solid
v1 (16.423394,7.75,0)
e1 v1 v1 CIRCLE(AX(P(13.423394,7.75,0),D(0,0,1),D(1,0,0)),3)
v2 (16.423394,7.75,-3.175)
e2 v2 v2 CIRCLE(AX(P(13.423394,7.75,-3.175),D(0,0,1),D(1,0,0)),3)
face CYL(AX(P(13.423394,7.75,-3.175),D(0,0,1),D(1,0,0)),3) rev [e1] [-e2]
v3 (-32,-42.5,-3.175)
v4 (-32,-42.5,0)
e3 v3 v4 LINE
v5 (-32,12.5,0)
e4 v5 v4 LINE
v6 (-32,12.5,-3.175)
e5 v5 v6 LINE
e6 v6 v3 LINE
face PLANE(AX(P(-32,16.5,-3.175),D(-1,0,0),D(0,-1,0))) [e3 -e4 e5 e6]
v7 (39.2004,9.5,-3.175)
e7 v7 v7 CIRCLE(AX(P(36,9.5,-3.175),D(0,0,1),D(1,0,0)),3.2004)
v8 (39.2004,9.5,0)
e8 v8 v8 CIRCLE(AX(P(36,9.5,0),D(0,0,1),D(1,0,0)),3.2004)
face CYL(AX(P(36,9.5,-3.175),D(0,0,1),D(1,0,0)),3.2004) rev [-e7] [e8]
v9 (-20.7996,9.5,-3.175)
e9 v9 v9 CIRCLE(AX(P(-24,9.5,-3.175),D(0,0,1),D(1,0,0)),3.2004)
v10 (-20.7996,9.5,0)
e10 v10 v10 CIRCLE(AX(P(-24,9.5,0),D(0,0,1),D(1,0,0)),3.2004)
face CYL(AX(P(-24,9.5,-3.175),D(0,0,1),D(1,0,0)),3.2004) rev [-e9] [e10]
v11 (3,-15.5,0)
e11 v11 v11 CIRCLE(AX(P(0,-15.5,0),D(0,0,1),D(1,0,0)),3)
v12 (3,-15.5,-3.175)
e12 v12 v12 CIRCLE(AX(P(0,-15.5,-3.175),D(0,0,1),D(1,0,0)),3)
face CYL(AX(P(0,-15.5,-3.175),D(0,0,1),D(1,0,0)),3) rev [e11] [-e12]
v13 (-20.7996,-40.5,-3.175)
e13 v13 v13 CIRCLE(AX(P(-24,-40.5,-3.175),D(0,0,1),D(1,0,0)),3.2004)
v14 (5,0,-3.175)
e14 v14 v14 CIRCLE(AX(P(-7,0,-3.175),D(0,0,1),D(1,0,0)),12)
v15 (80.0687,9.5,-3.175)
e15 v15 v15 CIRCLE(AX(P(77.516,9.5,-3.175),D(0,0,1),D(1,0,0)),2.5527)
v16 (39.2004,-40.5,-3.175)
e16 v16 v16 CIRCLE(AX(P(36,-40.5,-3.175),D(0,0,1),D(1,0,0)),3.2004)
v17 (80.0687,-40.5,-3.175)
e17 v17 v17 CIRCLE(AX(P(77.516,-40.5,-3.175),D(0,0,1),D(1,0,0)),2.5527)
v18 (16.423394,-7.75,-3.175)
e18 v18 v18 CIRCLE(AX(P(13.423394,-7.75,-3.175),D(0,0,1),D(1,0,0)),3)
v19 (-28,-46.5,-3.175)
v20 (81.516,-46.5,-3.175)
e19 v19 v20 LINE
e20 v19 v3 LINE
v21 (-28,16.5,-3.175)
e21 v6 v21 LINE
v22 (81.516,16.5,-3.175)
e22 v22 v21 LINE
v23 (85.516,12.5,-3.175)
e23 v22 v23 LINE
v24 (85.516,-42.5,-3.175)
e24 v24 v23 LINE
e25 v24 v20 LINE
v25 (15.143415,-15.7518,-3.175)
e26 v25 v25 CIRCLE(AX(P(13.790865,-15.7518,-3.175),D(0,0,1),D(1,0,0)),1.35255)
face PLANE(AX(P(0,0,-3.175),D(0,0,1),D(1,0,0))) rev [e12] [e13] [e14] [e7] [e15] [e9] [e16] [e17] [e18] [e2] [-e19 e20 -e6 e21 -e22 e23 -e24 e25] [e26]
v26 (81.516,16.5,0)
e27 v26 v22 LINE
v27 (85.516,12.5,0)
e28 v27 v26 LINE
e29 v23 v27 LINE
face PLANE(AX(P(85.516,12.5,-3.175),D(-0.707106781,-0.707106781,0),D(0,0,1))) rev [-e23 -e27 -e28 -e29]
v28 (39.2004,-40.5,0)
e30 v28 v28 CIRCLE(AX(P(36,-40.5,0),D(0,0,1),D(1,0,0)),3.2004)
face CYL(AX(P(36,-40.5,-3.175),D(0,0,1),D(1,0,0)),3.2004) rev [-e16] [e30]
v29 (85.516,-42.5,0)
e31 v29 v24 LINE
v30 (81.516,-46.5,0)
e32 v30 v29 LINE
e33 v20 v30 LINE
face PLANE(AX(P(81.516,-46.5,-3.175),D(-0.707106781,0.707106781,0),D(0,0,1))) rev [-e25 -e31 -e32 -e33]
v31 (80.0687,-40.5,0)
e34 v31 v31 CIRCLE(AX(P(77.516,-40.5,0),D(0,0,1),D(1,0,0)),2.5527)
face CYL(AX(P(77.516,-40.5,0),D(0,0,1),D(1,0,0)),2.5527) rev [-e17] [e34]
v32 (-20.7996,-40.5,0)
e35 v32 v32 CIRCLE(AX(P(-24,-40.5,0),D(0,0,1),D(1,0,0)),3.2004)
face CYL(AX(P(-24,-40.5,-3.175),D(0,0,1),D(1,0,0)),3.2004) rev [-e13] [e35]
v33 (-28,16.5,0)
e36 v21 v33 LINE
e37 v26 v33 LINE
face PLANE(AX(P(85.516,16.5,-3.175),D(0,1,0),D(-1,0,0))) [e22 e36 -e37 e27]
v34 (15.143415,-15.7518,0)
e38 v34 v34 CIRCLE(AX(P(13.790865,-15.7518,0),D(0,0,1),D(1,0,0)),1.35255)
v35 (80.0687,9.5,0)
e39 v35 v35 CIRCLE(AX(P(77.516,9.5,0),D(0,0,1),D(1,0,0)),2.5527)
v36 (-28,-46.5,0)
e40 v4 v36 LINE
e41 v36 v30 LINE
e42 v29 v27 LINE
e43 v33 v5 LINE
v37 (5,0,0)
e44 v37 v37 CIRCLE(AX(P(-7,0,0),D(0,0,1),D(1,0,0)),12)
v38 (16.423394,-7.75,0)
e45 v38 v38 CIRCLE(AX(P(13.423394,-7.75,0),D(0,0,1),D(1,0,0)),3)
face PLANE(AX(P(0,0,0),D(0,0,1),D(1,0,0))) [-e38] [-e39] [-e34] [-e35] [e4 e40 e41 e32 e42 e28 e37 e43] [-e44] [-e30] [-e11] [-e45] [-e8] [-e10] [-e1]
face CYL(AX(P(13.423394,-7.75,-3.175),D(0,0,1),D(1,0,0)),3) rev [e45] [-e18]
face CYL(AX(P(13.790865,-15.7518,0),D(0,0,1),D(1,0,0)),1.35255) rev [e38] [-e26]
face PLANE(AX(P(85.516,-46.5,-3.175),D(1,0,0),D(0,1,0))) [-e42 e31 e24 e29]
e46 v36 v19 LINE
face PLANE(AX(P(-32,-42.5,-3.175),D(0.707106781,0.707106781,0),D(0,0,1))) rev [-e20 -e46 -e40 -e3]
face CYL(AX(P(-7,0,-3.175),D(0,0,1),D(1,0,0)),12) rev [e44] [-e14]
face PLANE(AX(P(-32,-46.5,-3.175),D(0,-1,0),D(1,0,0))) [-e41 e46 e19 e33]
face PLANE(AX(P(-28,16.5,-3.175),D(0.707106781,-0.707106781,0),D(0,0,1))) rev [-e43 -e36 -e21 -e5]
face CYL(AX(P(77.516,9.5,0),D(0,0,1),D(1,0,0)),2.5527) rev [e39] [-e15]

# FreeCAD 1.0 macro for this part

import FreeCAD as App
import Part
import Sketcher

V = App.Vector
Q = App.Units.Quantity


def edges_at(feature, points):
    """Names of the edges that pass closest to the given points."""
    edges = feature.Shape.Edges
    near = lambda p: min(range(len(edges)), key=lambda i: edges[i].distToShape(Part.Vertex(*p))[0])
    return sorted({f"Edge{near(p) + 1}" for p in points})

doc = App.newDocument("Part")
body = doc.addObject("PartDesign::Body", "Body")

sketch1 = body.newObject("Sketcher::SketchObject", "Sketch")
sketch1.AttachmentSupport = (doc.getObject("XY_Plane"), [""])
sketch1.MapMode = "FlatFace"
sketch1.addGeometry(Part.LineSegment(V(-32, 16.5, 0), V(-32, -46.5, 0)), False)
sketch1.addGeometry(Part.LineSegment(V(-32, -46.5, 0), V(85.5, -46.5, 0)), False)
sketch1.addGeometry(Part.LineSegment(V(85.5, -46.5, 0), V(85.5, 16.5, 0)), False)
sketch1.addGeometry(Part.LineSegment(V(85.5, 16.5, 0), V(-32, 16.5, 0)), False)
sketch1.addGeometry(Part.Circle(V(-24, -40.5, 0), V(0, 0, 1), 3.2), False)
sketch1.addGeometry(Part.Circle(V(0, -15.5, 0), V(0, 0, 1), 3), False)
sketch1.addGeometry(Part.Circle(V(36, -40.5, 0), V(0, 0, 1), 3.2), False)
sketch1.addGeometry(Part.Circle(V(-24, 9.5, 0), V(0, 0, 1), 3.2), False)
sketch1.addGeometry(Part.Circle(V(-7, 0, 0), V(0, 0, 1), 12), False)
sketch1.addGeometry(Part.Circle(V(13.4, -7.8, 0), V(0, 0, 1), 3), False)
sketch1.addGeometry(Part.Circle(V(13.4, 7.8, 0), V(0, 0, 1), 3), False)
sketch1.addGeometry(Part.Circle(V(36, 9.5, 0), V(0, 0, 1), 3.2), False)
sketch1.addConstraint(Sketcher.Constraint("Coincident", 0, 2, 1, 1))
sketch1.addConstraint(Sketcher.Constraint("Coincident", 1, 2, 2, 1))
sketch1.addConstraint(Sketcher.Constraint("Coincident", 2, 2, 3, 1))
sketch1.addConstraint(Sketcher.Constraint("Coincident", 3, 2, 0, 1))
sketch1.addConstraint(Sketcher.Constraint("Vertical", 0))
sketch1.addConstraint(Sketcher.Constraint("Horizontal", 1))
sketch1.addConstraint(Sketcher.Constraint("Vertical", 2))
sketch1.addConstraint(Sketcher.Constraint("Horizontal", 3))
sketch1.addConstraint(Sketcher.Constraint("Equal", 4, 6))
sketch1.addConstraint(Sketcher.Constraint("Equal", 6, 7))
sketch1.addConstraint(Sketcher.Constraint("Equal", 5, 9))
sketch1.addConstraint(Sketcher.Constraint("Equal", 9, 10))
sketch1.addConstraint(Sketcher.Constraint("Equal", 7, 11))
sketch1.addConstraint(Sketcher.Constraint("Symmetric", 9, 3, 10, 3, -1))
sketch1.addConstraint(Sketcher.Constraint("PointOnObject", 5, 3, -2))
sketch1.addConstraint(Sketcher.Constraint("PointOnObject", 8, 3, -1))
sketch1.addConstraint(Sketcher.Constraint("Horizontal", 4, 3, 6, 3))
sketch1.addConstraint(Sketcher.Constraint("Horizontal", 7, 3, 11, 3))
sketch1.addConstraint(Sketcher.Constraint("Vertical", 4, 3, 7, 3))
sketch1.addConstraint(Sketcher.Constraint("Vertical", 6, 3, 11, 3))
sketch1.addConstraint(Sketcher.Constraint("Diameter", 5, Q("6 mm")))
sketch1.addConstraint(Sketcher.Constraint("Diameter", 8, Q("24 mm")))
sketch1.addConstraint(Sketcher.Constraint("DistanceY", 0, 2, 0, 1, Q("63 mm")))
sketch1.addConstraint(Sketcher.Constraint("DistanceX", 4, 3, -1, 1, Q("24 mm")))
sketch1.addConstraint(Sketcher.Constraint("DistanceX", -1, 1, 6, 3, Q("36 mm")))
sketch1.addConstraint(Sketcher.Constraint("DistanceX", 8, 3, -1, 1, Q("7 mm")))
sketch1.addConstraint(Sketcher.Constraint("DistanceX", 0, 2, -1, 1, Q("32 mm")))
sketch1.addConstraint(Sketcher.Constraint("DistanceY", 4, 3, 5, 3, Q("25 mm")))
sketch1.addConstraint(Sketcher.Constraint("DistanceY", 5, 3, 7, 3, Q("25 mm")))
sketch1.addConstraint(Sketcher.Constraint("DistanceY", 0, 2, 4, 3, Q("6 mm")))
sketch1.addConstraint(Sketcher.Constraint("Diameter", 4, Q("6.4008 mm")))
sketch1.addConstraint(Sketcher.Constraint("DistanceY", 4, 3, -1, 1, Q("40.5 mm")))
sketch1.addConstraint(Sketcher.Constraint("DistanceY", 9, 3, 10, 3, Q("15.5 mm")))
sketch1.addConstraint(Sketcher.Constraint("DistanceX", 1, 1, 1, 2, Q("117.516 mm")))
sketch1.addConstraint(Sketcher.Constraint("DistanceX", -1, 1, 9, 3, Q("13.423394 mm")))
pad1 = body.newObject("PartDesign::Pad", "Pad")
pad1.Profile = sketch1
pad1.Length = 3.175
pad1.Reversed = True
doc.recompute()

chamfer = body.newObject("PartDesign::Chamfer", "Chamfer")
chamfer.Base = (pad1, edges_at(pad1, [
    (-32, -46.5, -1.587),
    (-32, 16.5, -1.587),
    (85.516, 16.5, -1.587),
    (85.516, -46.5, -1.587),
]))
chamfer.Size = 4

sketch2 = body.newObject("Sketcher::SketchObject", "Sketch001")
sketch2.AttachmentSupport = (doc.getObject("XY_Plane"), [""])
sketch2.MapMode = "FlatFace"
sketch2.addGeometry(Part.Circle(V(77.5, 9.5, 0), V(0, 0, 1), 2.6), False)
sketch2.addGeometry(Part.Circle(V(77.5, -40.5, 0), V(0, 0, 1), 2.6), False)
sketch2.addConstraint(Sketcher.Constraint("Equal", 0, 1))
sketch2.addConstraint(Sketcher.Constraint("Vertical", 0, 3, 1, 3))
sketch2.addConstraint(Sketcher.Constraint("DistanceY", 1, 3, 0, 3, Q("50 mm")))
sketch2.addConstraint(Sketcher.Constraint("Diameter", 0, Q("5.1054 mm")))
sketch2.addConstraint(Sketcher.Constraint("DistanceY", -1, 1, 0, 3, Q("9.5 mm")))
sketch2.addConstraint(Sketcher.Constraint("DistanceX", -1, 1, 0, 3, Q("77.516 mm")))
doc.recompute()
hole = body.newObject("PartDesign::Hole", "Hole")
hole.Profile = sketch2
hole.ThreadType = "None"
hole.Diameter = 5.1054
hole.DepthType = "ThroughAll"

sketch3 = body.newObject("Sketcher::SketchObject", "Sketch002")
sketch3.AttachmentSupport = (doc.getObject("XY_Plane"), [""])
sketch3.MapMode = "FlatFace"
sketch3.addGeometry(Part.Circle(V(13.8, -15.8, 0), V(0, 0, 1), 1.4), False)
sketch3.addConstraint(Sketcher.Constraint("Diameter", 0, Q("2.7051 mm")))
sketch3.addConstraint(Sketcher.Constraint("DistanceY", 0, 3, -1, 1, Q("15.7518 mm")))
sketch3.addConstraint(Sketcher.Constraint("DistanceX", -1, 1, 0, 3, Q("13.790865 mm")))
doc.recompute()
hole2 = body.newObject("PartDesign::Hole", "Hole001")
hole2.Profile = sketch3
hole2.ThreadType = "None"
hole2.Diameter = 2.7051
hole2.DepthType = "ThroughAll"

doc.recompute()
